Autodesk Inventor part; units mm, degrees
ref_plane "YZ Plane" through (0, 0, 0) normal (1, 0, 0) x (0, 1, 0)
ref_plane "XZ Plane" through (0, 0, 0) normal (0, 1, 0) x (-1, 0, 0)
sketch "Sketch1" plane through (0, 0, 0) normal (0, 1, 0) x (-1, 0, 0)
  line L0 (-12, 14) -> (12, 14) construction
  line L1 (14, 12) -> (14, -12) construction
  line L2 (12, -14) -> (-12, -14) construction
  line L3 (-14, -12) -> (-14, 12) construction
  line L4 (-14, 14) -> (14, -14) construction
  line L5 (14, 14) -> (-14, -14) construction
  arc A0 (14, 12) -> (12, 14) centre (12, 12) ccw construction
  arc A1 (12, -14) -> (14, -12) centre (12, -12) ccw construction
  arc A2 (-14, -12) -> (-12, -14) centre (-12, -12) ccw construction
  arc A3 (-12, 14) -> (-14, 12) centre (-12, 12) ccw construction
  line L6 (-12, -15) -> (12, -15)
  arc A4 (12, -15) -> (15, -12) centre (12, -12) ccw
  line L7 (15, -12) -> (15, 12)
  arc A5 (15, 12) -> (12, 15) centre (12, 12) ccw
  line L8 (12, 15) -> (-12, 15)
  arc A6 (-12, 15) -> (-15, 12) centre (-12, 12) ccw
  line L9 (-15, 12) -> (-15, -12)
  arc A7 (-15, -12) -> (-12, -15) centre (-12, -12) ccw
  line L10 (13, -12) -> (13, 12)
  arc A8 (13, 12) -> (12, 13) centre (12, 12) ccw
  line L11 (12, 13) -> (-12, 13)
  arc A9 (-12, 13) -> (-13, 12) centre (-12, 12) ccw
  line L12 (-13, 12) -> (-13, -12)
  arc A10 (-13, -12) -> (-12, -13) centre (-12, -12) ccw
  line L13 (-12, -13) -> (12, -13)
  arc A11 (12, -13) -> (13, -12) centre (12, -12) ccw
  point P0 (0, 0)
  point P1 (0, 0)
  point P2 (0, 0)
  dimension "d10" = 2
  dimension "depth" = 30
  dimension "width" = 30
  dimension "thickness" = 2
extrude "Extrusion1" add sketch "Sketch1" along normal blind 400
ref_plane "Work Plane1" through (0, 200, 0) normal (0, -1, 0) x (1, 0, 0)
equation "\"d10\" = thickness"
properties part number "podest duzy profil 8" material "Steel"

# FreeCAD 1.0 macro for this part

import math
import FreeCAD as App
import Part
import Sketcher

V = App.Vector

doc = App.newDocument("Part")
params = doc.addObject("Spreadsheet::Sheet", "Params")
for row, (alias, value) in enumerate([
    ("sketch1_radius", "1 mm"),
    ("sketch1_radius2", "3 mm"),
    ("sketch1_width", "24 mm"),
    ("pad1_length", "400 mm"),
], start=1):
    params.set(f"A{row}", alias)
    params.set(f"B{row}", "=" + value)
    params.setAlias(f"B{row}", alias)

body = doc.addObject("PartDesign::Body", "Body")

# Sketch on XZ plane
sketch1 = body.newObject("Sketcher::SketchObject", "Sketch")
sketch1.AttachmentSupport = (doc.getObject("XZ_Plane"), [""])
sketch1.MapMode = "FlatFace"
sketch1.addGeometry([
    Part.ArcOfCircle(Part.Circle(V(12, -12, 0), V(0, 0, 1), 3), math.radians(-90), math.radians(0)),  # 0
    Part.LineSegment(V(12, -15, 0), V(-12, -15, 0)),  # 1
    Part.ArcOfCircle(Part.Circle(V(-12, -12, 0), V(0, 0, 1), 3), math.radians(180), math.radians(270)),  # 2
    Part.LineSegment(V(-15, -12, 0), V(-15, 12, 0)),  # 3
    Part.ArcOfCircle(Part.Circle(V(-12, 12, 0), V(0, 0, 1), 3), math.radians(90), math.radians(180)),  # 4
    Part.LineSegment(V(-12, 15, 0), V(12, 15, 0)),  # 5
    Part.ArcOfCircle(Part.Circle(V(12, 12, 0), V(0, 0, 1), 3), math.radians(0), math.radians(90)),  # 6
    Part.LineSegment(V(15, 12, 0), V(15, -12, 0)),  # 7
    Part.LineSegment(V(-13, 12, 0), V(-13, -12, 0)),  # 8
    Part.ArcOfCircle(Part.Circle(V(-12, -12, 0), V(0, 0, 1), 1), math.radians(180), math.radians(270)),  # 9
    Part.LineSegment(V(-12, -13, 0), V(12, -13, 0)),  # 10
    Part.ArcOfCircle(Part.Circle(V(12, -12, 0), V(0, 0, 1), 1), math.radians(-90), math.radians(0)),  # 11
    Part.LineSegment(V(13, -12, 0), V(13, 12, 0)),  # 12
    Part.ArcOfCircle(Part.Circle(V(12, 12, 0), V(0, 0, 1), 1), math.radians(0), math.radians(90)),  # 13
    Part.LineSegment(V(12, 13, 0), V(-12, 13, 0)),  # 14
    Part.ArcOfCircle(Part.Circle(V(-12, 12, 0), V(0, 0, 1), 1), math.radians(90), math.radians(180)),  # 15
], False)
sketch1.addConstraint([
    Sketcher.Constraint("Tangent", 0, 1, 1, 1),
    Sketcher.Constraint("Tangent", 1, 2, 2, 2),
    Sketcher.Constraint("Tangent", 2, 1, 3, 1),
    Sketcher.Constraint("Tangent", 3, 2, 4, 2),
    Sketcher.Constraint("Tangent", 4, 1, 5, 1),
    Sketcher.Constraint("Tangent", 5, 2, 6, 2),
    Sketcher.Constraint("Tangent", 6, 1, 7, 1),
    Sketcher.Constraint("Tangent", 7, 2, 0, 2),
    Sketcher.Constraint("Tangent", 8, 2, 9, 1),
    Sketcher.Constraint("Tangent", 9, 2, 10, 1),
    Sketcher.Constraint("Tangent", 10, 2, 11, 1),
    Sketcher.Constraint("Tangent", 11, 2, 12, 1),
    Sketcher.Constraint("Tangent", 12, 2, 13, 1),
    Sketcher.Constraint("Tangent", 13, 2, 14, 1),
    Sketcher.Constraint("Tangent", 14, 2, 15, 1),
    Sketcher.Constraint("Tangent", 15, 2, 8, 1),
    Sketcher.Constraint("Horizontal", 1),
    Sketcher.Constraint("Vertical", 3),
    Sketcher.Constraint("Horizontal", 5),
    Sketcher.Constraint("Vertical", 7),
    Sketcher.Constraint("Vertical", 8),
    Sketcher.Constraint("Horizontal", 10),
    Sketcher.Constraint("Vertical", 12),
    Sketcher.Constraint("Horizontal", 14),
    Sketcher.Constraint("Coincident", 9, 3, 2, 3),
    Sketcher.Constraint("Coincident", 11, 3, 0, 3),
    Sketcher.Constraint("Coincident", 13, 3, 6, 3),
    Sketcher.Constraint("Equal", 0, 2),
    Sketcher.Constraint("Equal", 2, 4),
    Sketcher.Constraint("Equal", 4, 6),
    Sketcher.Constraint("Equal", 13, 15),
    Sketcher.Constraint("Symmetric", 0, 3, 4, 3, -1, 1),
    Sketcher.Constraint("Equal", 14, 3),
    Sketcher.Constraint("Radius", 9, 1.0),
    Sketcher.Constraint("Radius", 0, 3.0),
    Sketcher.Constraint("DistanceX", 1, 2, 1, 1, 24.0),
])
sketch1.setExpression("Constraints[33]", "Params.sketch1_radius")
sketch1.setExpression("Constraints[34]", "Params.sketch1_radius2")
sketch1.setExpression("Constraints[35]", "Params.sketch1_width")
pad1 = body.newObject("PartDesign::Pad", "Pad")
pad1.Profile = sketch1
pad1.setExpression("Length", "Params.pad1_length")
pad1.Reversed = True

doc.recompute()
